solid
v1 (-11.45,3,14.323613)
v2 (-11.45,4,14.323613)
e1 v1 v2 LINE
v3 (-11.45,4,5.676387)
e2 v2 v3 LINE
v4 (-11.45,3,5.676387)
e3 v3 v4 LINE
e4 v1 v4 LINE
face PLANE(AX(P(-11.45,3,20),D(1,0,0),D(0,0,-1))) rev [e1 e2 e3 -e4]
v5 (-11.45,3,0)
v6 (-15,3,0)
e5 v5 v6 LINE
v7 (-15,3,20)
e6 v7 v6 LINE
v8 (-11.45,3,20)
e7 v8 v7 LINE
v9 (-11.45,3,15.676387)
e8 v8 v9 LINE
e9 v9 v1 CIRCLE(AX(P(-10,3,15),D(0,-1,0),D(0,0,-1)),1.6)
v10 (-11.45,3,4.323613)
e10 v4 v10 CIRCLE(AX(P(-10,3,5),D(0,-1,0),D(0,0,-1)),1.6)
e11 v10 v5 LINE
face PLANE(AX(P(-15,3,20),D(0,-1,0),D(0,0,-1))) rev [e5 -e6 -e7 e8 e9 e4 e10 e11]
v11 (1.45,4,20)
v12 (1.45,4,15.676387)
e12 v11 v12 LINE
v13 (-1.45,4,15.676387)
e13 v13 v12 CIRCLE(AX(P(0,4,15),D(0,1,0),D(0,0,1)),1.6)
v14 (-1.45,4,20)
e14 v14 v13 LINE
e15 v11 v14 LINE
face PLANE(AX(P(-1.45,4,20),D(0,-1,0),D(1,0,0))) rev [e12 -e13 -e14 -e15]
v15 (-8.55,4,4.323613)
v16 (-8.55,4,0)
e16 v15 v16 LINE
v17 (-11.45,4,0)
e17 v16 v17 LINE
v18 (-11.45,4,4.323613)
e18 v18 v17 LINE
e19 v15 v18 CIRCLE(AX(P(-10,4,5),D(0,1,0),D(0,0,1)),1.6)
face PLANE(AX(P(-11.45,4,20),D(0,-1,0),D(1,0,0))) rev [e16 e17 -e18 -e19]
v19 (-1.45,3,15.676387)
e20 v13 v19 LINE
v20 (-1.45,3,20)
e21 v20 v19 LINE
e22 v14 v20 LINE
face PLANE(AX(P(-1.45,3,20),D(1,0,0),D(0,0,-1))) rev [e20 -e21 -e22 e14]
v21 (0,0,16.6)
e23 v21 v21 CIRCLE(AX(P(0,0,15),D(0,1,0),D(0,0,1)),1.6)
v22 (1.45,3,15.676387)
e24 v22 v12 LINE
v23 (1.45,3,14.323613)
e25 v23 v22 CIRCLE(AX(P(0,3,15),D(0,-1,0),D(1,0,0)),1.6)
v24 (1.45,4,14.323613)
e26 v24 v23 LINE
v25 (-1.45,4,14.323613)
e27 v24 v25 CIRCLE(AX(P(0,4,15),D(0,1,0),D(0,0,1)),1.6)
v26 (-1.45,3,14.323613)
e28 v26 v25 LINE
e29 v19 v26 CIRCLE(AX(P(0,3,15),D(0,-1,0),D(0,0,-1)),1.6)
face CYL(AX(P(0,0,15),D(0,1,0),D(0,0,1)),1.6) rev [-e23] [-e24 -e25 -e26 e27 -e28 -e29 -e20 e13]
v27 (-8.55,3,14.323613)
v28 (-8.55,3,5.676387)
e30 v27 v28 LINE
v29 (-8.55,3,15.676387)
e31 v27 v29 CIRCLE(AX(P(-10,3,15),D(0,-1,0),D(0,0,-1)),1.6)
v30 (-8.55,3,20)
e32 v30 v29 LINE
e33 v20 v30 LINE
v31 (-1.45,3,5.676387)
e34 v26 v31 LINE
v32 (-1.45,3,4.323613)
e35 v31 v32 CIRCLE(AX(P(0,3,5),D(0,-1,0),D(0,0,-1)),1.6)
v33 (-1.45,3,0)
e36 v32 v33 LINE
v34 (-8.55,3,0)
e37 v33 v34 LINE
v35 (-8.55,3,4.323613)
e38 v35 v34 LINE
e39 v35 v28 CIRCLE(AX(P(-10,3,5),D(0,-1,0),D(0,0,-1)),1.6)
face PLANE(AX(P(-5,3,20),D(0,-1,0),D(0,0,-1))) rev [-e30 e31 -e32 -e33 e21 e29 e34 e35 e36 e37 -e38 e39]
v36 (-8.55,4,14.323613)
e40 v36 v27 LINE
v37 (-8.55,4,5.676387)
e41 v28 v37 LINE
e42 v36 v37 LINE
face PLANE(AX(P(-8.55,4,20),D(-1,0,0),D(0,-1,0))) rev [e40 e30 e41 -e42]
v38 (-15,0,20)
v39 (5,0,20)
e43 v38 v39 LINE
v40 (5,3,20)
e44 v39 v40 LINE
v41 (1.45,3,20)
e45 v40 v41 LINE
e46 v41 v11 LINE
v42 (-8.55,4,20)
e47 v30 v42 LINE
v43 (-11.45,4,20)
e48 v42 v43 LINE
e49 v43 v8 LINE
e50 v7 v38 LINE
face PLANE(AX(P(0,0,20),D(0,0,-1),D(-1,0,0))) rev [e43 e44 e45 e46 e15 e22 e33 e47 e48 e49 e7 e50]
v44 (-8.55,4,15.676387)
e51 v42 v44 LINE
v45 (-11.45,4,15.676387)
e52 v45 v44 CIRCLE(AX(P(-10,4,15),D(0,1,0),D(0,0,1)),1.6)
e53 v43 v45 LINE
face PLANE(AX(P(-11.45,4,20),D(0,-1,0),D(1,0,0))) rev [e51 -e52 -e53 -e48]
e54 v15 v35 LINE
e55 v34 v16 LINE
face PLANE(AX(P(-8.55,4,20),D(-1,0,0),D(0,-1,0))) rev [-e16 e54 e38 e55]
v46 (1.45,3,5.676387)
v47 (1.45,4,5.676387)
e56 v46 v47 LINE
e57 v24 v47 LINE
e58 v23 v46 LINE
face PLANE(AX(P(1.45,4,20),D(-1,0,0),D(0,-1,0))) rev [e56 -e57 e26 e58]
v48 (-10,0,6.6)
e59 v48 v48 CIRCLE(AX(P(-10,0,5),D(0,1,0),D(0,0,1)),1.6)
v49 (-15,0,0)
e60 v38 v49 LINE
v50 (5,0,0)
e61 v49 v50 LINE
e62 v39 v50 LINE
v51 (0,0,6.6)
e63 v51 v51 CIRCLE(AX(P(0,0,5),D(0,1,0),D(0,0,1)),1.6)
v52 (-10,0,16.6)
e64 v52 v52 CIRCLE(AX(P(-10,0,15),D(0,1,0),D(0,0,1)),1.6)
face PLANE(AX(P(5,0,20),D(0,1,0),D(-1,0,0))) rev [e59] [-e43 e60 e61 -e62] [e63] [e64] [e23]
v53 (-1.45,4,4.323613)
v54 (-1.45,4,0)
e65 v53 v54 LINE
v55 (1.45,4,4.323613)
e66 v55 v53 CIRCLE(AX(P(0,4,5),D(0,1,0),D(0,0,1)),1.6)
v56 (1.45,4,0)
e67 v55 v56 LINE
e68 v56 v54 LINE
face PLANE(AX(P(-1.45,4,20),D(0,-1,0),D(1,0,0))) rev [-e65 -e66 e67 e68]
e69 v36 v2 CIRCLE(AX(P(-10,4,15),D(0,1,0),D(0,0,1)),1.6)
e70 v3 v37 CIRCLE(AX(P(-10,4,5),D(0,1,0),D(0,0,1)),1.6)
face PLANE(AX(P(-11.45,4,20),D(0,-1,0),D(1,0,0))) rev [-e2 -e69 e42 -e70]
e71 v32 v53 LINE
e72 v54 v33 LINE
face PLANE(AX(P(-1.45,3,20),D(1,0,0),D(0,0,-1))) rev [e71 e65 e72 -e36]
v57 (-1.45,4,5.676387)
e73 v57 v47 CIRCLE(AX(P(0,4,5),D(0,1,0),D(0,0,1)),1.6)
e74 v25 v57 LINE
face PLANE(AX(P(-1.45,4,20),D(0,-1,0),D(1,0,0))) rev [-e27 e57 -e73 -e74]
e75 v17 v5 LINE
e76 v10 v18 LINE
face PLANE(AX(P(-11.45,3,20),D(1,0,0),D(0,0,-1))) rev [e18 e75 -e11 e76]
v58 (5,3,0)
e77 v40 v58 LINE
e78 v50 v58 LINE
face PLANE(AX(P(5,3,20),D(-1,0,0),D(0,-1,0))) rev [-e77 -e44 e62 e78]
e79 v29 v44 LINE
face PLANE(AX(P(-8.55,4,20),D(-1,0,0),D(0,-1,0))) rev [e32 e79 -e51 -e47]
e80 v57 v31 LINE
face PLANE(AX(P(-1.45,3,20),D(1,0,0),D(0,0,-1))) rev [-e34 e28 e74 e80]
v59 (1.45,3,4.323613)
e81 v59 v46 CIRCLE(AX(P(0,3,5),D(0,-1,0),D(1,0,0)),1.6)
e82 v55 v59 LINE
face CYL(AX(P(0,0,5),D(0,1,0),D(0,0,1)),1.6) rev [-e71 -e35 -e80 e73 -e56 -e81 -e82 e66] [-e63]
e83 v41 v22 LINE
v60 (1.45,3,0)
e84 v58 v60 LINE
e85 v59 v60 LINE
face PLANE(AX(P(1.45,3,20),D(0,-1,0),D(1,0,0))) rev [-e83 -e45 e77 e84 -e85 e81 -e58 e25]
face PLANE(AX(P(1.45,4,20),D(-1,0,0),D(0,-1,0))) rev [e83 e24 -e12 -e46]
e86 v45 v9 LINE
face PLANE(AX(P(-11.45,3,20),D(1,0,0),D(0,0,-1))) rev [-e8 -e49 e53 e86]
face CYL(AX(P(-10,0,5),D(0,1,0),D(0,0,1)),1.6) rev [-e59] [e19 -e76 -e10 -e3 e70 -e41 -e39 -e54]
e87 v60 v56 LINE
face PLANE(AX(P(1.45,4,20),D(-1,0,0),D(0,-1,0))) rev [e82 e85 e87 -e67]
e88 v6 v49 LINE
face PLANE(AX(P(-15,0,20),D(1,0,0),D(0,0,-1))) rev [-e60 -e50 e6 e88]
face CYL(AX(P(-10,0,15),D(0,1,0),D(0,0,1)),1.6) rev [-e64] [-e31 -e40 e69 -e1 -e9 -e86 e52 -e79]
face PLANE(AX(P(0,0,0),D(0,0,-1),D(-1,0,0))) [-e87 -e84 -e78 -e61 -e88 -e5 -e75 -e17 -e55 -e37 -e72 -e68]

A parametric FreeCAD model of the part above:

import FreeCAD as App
import Part
import Sketcher
from FreeCAD import Vector


def add_polygon(sketch, points):
    """Adds a closed chain of lines whose ends are joined by coincident constraints."""
    first, n = sketch.GeometryCount, len(points)
    for a, b in zip(points, points[1:] + points[:1]):
        sketch.addGeometry(Part.LineSegment(App.Vector(*a, 0), App.Vector(*b, 0)), False)
    for i in range(n):
        sketch.addConstraint(Sketcher.Constraint("Coincident", first + i, 2, first + (i + 1) % n, 1))

doc = App.newDocument("Part")
params = doc.addObject("Spreadsheet::Sheet", "Params")
for row, (alias, value) in enumerate([
    ("sketch1_width", "10 mm"),
    ("sketch1_height", "3 mm"),
    ("sketch1_height2", "1 mm"),
    ("sketch1_width2", "2.9 mm"),
    ("pad1_length", "20 mm"),
    ("sketch2_diameter", "3.2 mm"),
    ("linearpattern_pitch", "10 mm"),
], start=1):
    params.set(f"A{row}", alias)
    params.set(f"B{row}", "=" + value)
    params.setAlias(f"B{row}", alias)

body = doc.addObject("PartDesign::Body", "Body")

# Sketch on XY plane
sketch1 = doc.addObject("Sketcher::SketchObject", "Sketch")
body.addObject(sketch1)
sketch1.AttachmentSupport = (doc.XY_Plane, [""])
sketch1.MapMode = "FlatFace"
add_polygon(sketch1, [(-5, 3), (-5, 0), (5, 0), (5, 3), (1.4, 3), (1.4, 4), (-1.4, 4), (-1.4, 3)])  # lines 0-7
sketch1.addConstraint(Sketcher.Constraint("Vertical", 0))
sketch1.addConstraint(Sketcher.Constraint("Horizontal", 1))
sketch1.addConstraint(Sketcher.Constraint("Vertical", 2))
sketch1.addConstraint(Sketcher.Constraint("Horizontal", 3))
sketch1.addConstraint(Sketcher.Constraint("Vertical", 4))
sketch1.addConstraint(Sketcher.Constraint("Horizontal", 5))
sketch1.addConstraint(Sketcher.Constraint("Vertical", 6))
sketch1.addConstraint(Sketcher.Constraint("Horizontal", 7))
sketch1.addConstraint(Sketcher.Constraint("Symmetric", 0, 2, 1, 2, -1, 1))
sketch1.addConstraint(Sketcher.Constraint("Symmetric", 3, 2, 6, 2, -2))
sketch1.addConstraint(Sketcher.Constraint("DistanceX", 1, 1, 1, 2, 10.0))
sketch1.addConstraint(Sketcher.Constraint("DistanceY", 0, 2, 0, 1, 3.0))
sketch1.addConstraint(Sketcher.Constraint("DistanceY", 4, 1, 4, 2, 1.0))
sketch1.addConstraint(Sketcher.Constraint("DistanceX", 5, 2, 5, 1, 2.9))
sketch1.setExpression("Constraints[18]", "Params.sketch1_width")
sketch1.setExpression("Constraints[19]", "Params.sketch1_height")
sketch1.setExpression("Constraints[20]", "Params.sketch1_height2")
sketch1.setExpression("Constraints[21]", "Params.sketch1_width2")
pad1 = doc.addObject("PartDesign::Pad", "Pad")
body.addObject(pad1)
pad1.Profile = sketch1
pad1.setExpression("Length", "Params.pad1_length")

# Sketch on XZ plane
sketch2 = doc.addObject("Sketcher::SketchObject", "Sketch001")
body.addObject(sketch2)
sketch2.AttachmentSupport = (doc.XZ_Plane, [""])
sketch2.MapMode = "FlatFace"
sketch2.AttachmentOffset = App.Placement(Vector(0, 0, -4), App.Rotation())
sketch2.addGeometry(Part.Circle(Vector(0, 5, 0), Vector(0, 0, 1), 1.6), False)
sketch2.addGeometry(Part.Circle(Vector(0, 15, 0), Vector(0, 0, 1), 1.6), False)
sketch2.addConstraint(Sketcher.Constraint("Equal", 0, 1))
sketch2.addConstraint(Sketcher.Constraint("PointOnObject", 0, 3, -2))
sketch2.addConstraint(Sketcher.Constraint("PointOnObject", 1, 3, -2))
sketch2.addConstraint(Sketcher.Constraint("Diameter", 0, 3.2))
sketch2.addConstraint(Sketcher.Constraint("DistanceY", -1, 1, 0, 3, 5.0))
sketch2.addConstraint(Sketcher.Constraint("DistanceY", -1, 1, 1, 3, 15.0))
sketch2.setExpression("Constraints[3]", "Params.sketch2_diameter")
pocket1 = doc.addObject("PartDesign::Pocket", "Pocket")
body.addObject(pocket1)
pocket1.Profile = sketch2
pocket1.Type = "ThroughAll"
pocket1.Reversed = True
doc.recompute()

linearpattern = doc.addObject("PartDesign::LinearPattern", "LinearPattern")
body.addObject(linearpattern)
linearpattern.Originals = [pad1, pocket1]
linearpattern.Direction = (doc.X_Axis, [""])
linearpattern.Mode = "offset"
linearpattern.setExpression("Offset", "Params.linearpattern_pitch")
linearpattern.Occurrences = 2
linearpattern.Reversed = True
body.Tip = linearpattern

doc.recompute()
